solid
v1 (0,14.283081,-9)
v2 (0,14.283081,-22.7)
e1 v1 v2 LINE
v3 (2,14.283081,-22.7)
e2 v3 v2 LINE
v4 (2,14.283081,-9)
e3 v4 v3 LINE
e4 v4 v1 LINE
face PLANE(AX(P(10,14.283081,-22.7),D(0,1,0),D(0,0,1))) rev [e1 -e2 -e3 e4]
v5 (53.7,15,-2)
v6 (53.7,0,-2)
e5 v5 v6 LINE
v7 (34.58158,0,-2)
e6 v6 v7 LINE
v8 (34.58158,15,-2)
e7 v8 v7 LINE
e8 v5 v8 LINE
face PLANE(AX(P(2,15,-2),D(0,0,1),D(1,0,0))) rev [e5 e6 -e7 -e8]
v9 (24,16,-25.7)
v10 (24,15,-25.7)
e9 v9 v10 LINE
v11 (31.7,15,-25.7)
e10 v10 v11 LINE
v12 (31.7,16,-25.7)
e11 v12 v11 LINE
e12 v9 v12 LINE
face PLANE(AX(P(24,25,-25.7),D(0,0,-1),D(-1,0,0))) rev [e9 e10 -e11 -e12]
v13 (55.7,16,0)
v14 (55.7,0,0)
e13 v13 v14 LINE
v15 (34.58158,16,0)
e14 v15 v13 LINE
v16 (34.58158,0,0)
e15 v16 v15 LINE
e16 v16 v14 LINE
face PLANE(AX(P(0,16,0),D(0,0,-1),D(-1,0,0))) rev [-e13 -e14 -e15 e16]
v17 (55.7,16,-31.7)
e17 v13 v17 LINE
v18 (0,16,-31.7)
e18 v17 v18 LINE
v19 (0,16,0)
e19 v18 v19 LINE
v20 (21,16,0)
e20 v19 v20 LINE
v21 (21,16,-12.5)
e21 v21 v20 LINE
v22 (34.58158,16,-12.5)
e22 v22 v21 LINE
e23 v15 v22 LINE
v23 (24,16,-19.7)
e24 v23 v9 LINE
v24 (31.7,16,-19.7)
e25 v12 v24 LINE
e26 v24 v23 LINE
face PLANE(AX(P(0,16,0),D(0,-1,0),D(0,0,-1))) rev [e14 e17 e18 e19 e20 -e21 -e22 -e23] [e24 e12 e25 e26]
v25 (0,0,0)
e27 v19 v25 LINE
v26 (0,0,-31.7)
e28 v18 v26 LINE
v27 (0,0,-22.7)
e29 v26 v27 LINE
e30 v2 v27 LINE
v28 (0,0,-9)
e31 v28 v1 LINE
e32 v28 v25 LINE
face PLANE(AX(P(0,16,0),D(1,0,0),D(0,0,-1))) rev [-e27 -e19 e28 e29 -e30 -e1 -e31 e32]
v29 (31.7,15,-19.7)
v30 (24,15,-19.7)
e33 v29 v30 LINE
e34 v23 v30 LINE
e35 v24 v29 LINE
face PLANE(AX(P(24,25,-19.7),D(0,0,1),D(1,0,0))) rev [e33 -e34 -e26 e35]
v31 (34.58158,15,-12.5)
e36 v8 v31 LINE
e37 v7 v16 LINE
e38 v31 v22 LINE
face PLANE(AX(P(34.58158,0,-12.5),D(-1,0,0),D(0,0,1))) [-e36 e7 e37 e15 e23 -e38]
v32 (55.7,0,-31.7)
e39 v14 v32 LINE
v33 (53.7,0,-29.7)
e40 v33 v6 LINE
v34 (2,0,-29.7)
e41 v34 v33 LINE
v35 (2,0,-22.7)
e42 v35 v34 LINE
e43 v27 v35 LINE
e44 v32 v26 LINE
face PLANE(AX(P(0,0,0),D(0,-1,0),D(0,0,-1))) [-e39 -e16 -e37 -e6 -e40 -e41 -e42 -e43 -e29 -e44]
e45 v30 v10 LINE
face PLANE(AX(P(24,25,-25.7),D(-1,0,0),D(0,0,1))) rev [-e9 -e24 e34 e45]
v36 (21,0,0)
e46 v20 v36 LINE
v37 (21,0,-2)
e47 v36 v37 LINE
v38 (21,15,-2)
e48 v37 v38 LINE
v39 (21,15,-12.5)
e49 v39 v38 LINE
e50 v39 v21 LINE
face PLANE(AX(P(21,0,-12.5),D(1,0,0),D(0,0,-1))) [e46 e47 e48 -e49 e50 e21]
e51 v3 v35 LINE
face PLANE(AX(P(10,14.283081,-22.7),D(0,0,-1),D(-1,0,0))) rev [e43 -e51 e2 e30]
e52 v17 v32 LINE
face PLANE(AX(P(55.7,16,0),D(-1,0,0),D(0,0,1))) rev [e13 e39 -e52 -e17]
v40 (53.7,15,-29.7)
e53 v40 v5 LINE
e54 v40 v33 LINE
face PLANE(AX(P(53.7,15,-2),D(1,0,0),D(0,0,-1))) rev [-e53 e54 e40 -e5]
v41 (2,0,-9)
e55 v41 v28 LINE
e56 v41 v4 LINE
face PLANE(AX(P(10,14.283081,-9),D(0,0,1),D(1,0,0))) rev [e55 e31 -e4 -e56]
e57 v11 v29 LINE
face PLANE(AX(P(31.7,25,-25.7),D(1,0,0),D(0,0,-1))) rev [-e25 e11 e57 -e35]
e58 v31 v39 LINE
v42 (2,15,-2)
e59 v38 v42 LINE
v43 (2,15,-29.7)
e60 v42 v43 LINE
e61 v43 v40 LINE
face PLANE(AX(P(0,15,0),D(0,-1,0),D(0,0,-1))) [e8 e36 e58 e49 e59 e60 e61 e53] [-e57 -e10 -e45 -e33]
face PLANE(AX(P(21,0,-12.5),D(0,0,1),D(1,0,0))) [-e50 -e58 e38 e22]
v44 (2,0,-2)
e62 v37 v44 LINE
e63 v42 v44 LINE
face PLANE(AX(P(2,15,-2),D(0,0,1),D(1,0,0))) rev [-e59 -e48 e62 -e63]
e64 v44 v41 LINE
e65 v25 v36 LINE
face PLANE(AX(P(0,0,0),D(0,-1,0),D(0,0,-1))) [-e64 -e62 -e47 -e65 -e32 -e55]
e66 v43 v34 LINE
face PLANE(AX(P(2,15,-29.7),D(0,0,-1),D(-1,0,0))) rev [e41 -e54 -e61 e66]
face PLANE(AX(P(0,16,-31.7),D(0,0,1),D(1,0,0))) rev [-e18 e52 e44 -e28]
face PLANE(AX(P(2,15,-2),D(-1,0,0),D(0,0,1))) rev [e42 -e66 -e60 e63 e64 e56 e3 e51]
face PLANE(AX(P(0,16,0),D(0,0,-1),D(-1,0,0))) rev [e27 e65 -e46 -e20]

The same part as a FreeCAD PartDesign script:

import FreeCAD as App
import Part
import Sketcher


def add_polygon(sketch, points):
    """Adds a closed chain of lines whose ends are joined by coincident constraints."""
    first, n = sketch.GeometryCount, len(points)
    for a, b in zip(points, points[1:] + points[:1]):
        sketch.addGeometry(Part.LineSegment(App.Vector(*a, 0), App.Vector(*b, 0)), False)
    for i in range(n):
        sketch.addConstraint(Sketcher.Constraint("Coincident", first + i, 2, first + (i + 1) % n, 1))

doc = App.newDocument("Part")
body = doc.addObject("PartDesign::Body", "Body")

# Sketch on XZ plane
sketch1 = body.newObject("Sketcher::SketchObject", "Sketch")
sketch1.AttachmentSupport = (doc.getObject("XZ_Plane"), [""])
sketch1.MapMode = "FlatFace"
add_polygon(sketch1, [(0, -32), (0, 0), (56, 0), (56, -32)])  # lines 0-3
sketch1.addConstraint(Sketcher.Constraint("Vertical", 0))
sketch1.addConstraint(Sketcher.Constraint("Horizontal", 1))
sketch1.addConstraint(Sketcher.Constraint("Vertical", 2))
sketch1.addConstraint(Sketcher.Constraint("Horizontal", 3))
sketch1.addConstraint(Sketcher.Constraint("Coincident", 0, 2, -1, 1))
sketch1.addConstraint(Sketcher.Constraint("DistanceX", 1, 1, 1, 2, 55.7))
sketch1.addConstraint(Sketcher.Constraint("DistanceY", 0, 1, 0, 2, 31.7))
pad1 = body.newObject("PartDesign::Pad", "Pad")
pad1.Profile = sketch1
pad1.Length = 16
pad1.Reversed = True

# Sketch on XZ plane
sketch2 = body.newObject("Sketcher::SketchObject", "Sketch001")
sketch2.AttachmentSupport = (doc.getObject("XZ_Plane"), [""])
sketch2.MapMode = "FlatFace"
add_polygon(sketch2, [(2, -2), (2, -30), (54, -30), (54, -2)])  # lines 0-3
sketch2.addConstraint(Sketcher.Constraint("Vertical", 0))
sketch2.addConstraint(Sketcher.Constraint("Horizontal", 1))
sketch2.addConstraint(Sketcher.Constraint("Vertical", 2))
sketch2.addConstraint(Sketcher.Constraint("Horizontal", 3))
sketch2.addConstraint(Sketcher.Constraint("DistanceX", 1, 1, 1, 2, 51.7))
sketch2.addConstraint(Sketcher.Constraint("DistanceY", 0, 2, 0, 1, 27.7))
sketch2.addConstraint(Sketcher.Constraint("DistanceX", -1, 1, 0, 2, 2.0))
sketch2.addConstraint(Sketcher.Constraint("DistanceY", 2, 2, -1, 1, 2.0))
pocket1 = body.newObject("PartDesign::Pocket", "Pocket")
pocket1.Profile = sketch2
pocket1.Length = 15

# Sketch on XZ plane
sketch3 = body.newObject("Sketcher::SketchObject", "Sketch002")
sketch3.AttachmentSupport = (doc.getObject("XZ_Plane"), [""])
sketch3.MapMode = "FlatFace"
sketch3.AttachmentOffset = App.Placement(App.Vector(0, 0, -20), App.Rotation())
add_polygon(sketch3, [(21, 1), (21, -12), (35, -12), (35, 1)])  # lines 0-3
sketch3.addConstraint(Sketcher.Constraint("Vertical", 0))
sketch3.addConstraint(Sketcher.Constraint("Horizontal", 1))
sketch3.addConstraint(Sketcher.Constraint("Vertical", 2))
sketch3.addConstraint(Sketcher.Constraint("Horizontal", 3))
sketch3.addConstraint(Sketcher.Constraint("DistanceX", -1, 1, 0, 2, 21.0))
sketch3.addConstraint(Sketcher.Constraint("DistanceY", 0, 2, -1, 1, 12.5))
sketch3.addConstraint(Sketcher.Constraint("DistanceY", 0, 2, 0, 1, 13.316801))
sketch3.addConstraint(Sketcher.Constraint("DistanceX", 1, 1, 1, 2, 13.58158))
pocket2 = body.newObject("PartDesign::Pocket", "Pocket001")
pocket2.Profile = sketch3
pocket2.Type = "ThroughAll"
pocket2.Reversed = True

# Sketch on XZ plane
sketch4 = body.newObject("Sketcher::SketchObject", "Sketch003")
sketch4.AttachmentSupport = (doc.getObject("XZ_Plane"), [""])
sketch4.MapMode = "FlatFace"
sketch4.AttachmentOffset = App.Placement(App.Vector(0, 0, -15), App.Rotation())
add_polygon(sketch4, [(24, -20), (24, -26), (32, -26), (32, -20)])  # lines 0-3
sketch4.addConstraint(Sketcher.Constraint("Vertical", 0))
sketch4.addConstraint(Sketcher.Constraint("Horizontal", 1))
sketch4.addConstraint(Sketcher.Constraint("Vertical", 2))
sketch4.addConstraint(Sketcher.Constraint("Horizontal", 3))
sketch4.addConstraint(Sketcher.Constraint("DistanceY", 0, 2, 0, 1, 6.0))
sketch4.addConstraint(Sketcher.Constraint("DistanceX", 1, 1, 1, 2, 7.7))
sketch4.addConstraint(Sketcher.Constraint("DistanceX", -1, 1, 0, 2, 24.0))
sketch4.addConstraint(Sketcher.Constraint("DistanceY", 0, 2, -1, 1, 25.7))
pocket3 = body.newObject("PartDesign::Pocket", "Pocket002")
pocket3.Profile = sketch4
pocket3.Length = 10

# Sketch on YZ plane
sketch5 = body.newObject("Sketcher::SketchObject", "Sketch004")
sketch5.AttachmentSupport = (doc.getObject("YZ_Plane"), [""])
sketch5.MapMode = "FlatFace"
add_polygon(sketch5, [(14, -23), (-1, -23), (-1, -9), (14, -9)])  # lines 0-3
sketch5.addConstraint(Sketcher.Constraint("Horizontal", 0))
sketch5.addConstraint(Sketcher.Constraint("Vertical", 1))
sketch5.addConstraint(Sketcher.Constraint("Horizontal", 2))
sketch5.addConstraint(Sketcher.Constraint("Vertical", 3))
sketch5.addConstraint(Sketcher.Constraint("DistanceY", 1, 1, 1, 2, 13.7))
sketch5.addConstraint(Sketcher.Constraint("DistanceY", 1, 2, -1, 1, 9.0))
sketch5.addConstraint(Sketcher.Constraint("DistanceX", 0, 2, 0, 1, 14.996316))
sketch5.addConstraint(Sketcher.Constraint("DistanceX", -1, 1, 2, 2, 14.283081))
pocket4 = body.newObject("PartDesign::Pocket", "Pocket003")
pocket4.Profile = sketch5
pocket4.Length = 10
pocket4.Reversed = True

doc.recompute()
